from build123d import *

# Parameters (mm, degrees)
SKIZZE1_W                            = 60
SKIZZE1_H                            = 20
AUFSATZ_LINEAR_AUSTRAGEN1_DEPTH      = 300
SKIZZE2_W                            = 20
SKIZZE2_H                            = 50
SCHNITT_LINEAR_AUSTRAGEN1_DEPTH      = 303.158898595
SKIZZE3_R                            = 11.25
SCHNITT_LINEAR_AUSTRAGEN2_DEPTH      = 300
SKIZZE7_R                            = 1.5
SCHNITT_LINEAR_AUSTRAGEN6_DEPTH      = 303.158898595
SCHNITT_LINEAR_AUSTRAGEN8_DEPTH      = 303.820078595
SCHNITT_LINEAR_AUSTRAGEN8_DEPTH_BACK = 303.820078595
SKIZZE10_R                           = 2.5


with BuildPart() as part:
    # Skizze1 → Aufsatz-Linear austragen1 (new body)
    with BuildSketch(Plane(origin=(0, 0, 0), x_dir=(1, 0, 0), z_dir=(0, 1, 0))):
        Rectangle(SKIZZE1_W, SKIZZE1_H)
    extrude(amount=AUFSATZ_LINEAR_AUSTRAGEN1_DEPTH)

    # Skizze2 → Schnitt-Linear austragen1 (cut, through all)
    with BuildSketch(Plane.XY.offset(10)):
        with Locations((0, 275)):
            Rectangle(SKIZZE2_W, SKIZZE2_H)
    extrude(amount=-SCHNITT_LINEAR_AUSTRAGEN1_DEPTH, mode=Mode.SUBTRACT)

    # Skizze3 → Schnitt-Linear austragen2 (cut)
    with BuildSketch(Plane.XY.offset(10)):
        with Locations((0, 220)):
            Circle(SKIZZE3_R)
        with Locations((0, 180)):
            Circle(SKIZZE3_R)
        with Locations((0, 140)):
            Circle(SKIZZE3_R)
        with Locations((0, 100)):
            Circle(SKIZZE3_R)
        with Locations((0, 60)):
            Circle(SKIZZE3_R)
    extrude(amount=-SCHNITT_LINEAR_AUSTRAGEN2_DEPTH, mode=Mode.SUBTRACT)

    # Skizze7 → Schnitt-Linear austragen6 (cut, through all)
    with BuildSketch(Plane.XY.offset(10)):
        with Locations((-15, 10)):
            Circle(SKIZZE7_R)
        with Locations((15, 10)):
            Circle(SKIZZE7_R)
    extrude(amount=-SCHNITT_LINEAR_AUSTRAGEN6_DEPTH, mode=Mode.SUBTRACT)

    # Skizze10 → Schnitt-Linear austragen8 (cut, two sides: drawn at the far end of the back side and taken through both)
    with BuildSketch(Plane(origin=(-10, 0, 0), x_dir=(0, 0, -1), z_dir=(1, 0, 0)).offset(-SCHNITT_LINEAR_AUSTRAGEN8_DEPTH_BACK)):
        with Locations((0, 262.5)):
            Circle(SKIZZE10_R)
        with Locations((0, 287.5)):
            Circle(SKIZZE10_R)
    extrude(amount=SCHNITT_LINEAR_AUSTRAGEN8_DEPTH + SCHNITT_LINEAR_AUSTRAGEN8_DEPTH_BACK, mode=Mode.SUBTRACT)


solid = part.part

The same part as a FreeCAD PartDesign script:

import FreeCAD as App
import Part
import Sketcher
from FreeCAD import Vector
Q = App.Units.Quantity


def add_polygon(sketch, points):
    """Adds a closed chain of lines whose ends are joined by coincident constraints."""
    first, n = sketch.GeometryCount, len(points)
    for a, b in zip(points, points[1:] + points[:1]):
        sketch.addGeometry(Part.LineSegment(App.Vector(*a, 0), App.Vector(*b, 0)), False)
    for i in range(n):
        sketch.addConstraint(Sketcher.Constraint("Coincident", first + i, 2, first + (i + 1) % n, 1))

doc = App.newDocument("Part")
params = doc.addObject("Spreadsheet::Sheet", "Params")
for row, (alias, value) in enumerate([
    ("sketch1_width", "60 mm"),
    ("sketch1_height", "20 mm"),
    ("pad1_length", "300 mm"),
    ("sketch2_width", "20 mm"),
    ("sketch2_height", "50 mm"),
    ("sketch3_diameter", "22.5 mm"),
    ("pocket2_length", "300 mm"),
    ("sketch4_diameter", "3 mm"),
    ("sketch5_diameter", "5 mm"),
], start=1):
    params.set(f"A{row}", alias)
    params.set(f"B{row}", "=" + value)
    params.setAlias(f"B{row}", alias)

body = doc.addObject("PartDesign::Body", "Body")

sketch1 = body.newObject("Sketcher::SketchObject", "Sketch")
sketch1.AttachmentSupport = (doc.getObject("XZ_Plane"), [""])
sketch1.MapMode = "FlatFace"
add_polygon(sketch1, [(-30, -10), (-30, 10), (30, 10), (30, -10)])
sketch1.addConstraint(Sketcher.Constraint("Vertical", 0))
sketch1.addConstraint(Sketcher.Constraint("Horizontal", 1))
sketch1.addConstraint(Sketcher.Constraint("Vertical", 2))
sketch1.addConstraint(Sketcher.Constraint("Horizontal", 3))
sketch1.addConstraint(Sketcher.Constraint("Symmetric", 0, 2, 2, 2, -1, 1))
sketch1.addConstraint(Sketcher.Constraint("DistanceX", 1, 1, 1, 2, Q("60 mm")))
sketch1.addConstraint(Sketcher.Constraint("DistanceY", 0, 1, 0, 2, Q("20 mm")))
sketch1.setExpression("Constraints[9]", "Params.sketch1_width")
sketch1.setExpression("Constraints[10]", "Params.sketch1_height")
pad1 = body.newObject("PartDesign::Pad", "Pad")
pad1.Profile = sketch1
pad1.setExpression("Length", "Params.pad1_length")
pad1.Reversed = True

sketch2 = body.newObject("Sketcher::SketchObject", "Sketch001")
sketch2.AttachmentSupport = (doc.getObject("XY_Plane"), [""])
sketch2.MapMode = "FlatFace"
sketch2.AttachmentOffset = App.Placement(Vector(0, 0, 10), App.Rotation())
add_polygon(sketch2, [(-10, 300), (-10, 250), (10, 250), (10, 300)])
sketch2.addConstraint(Sketcher.Constraint("Vertical", 0))
sketch2.addConstraint(Sketcher.Constraint("Horizontal", 1))
sketch2.addConstraint(Sketcher.Constraint("Vertical", 2))
sketch2.addConstraint(Sketcher.Constraint("Horizontal", 3))
sketch2.addConstraint(Sketcher.Constraint("DistanceX", 1, 1, 1, 2, Q("20 mm")))
sketch2.addConstraint(Sketcher.Constraint("DistanceY", 0, 2, 0, 1, Q("50 mm")))
sketch2.addConstraint(Sketcher.Constraint("DistanceX", 0, 2, -1, 1, Q("10 mm")))
sketch2.addConstraint(Sketcher.Constraint("DistanceY", -1, 1, 0, 2, Q("250 mm")))
sketch2.setExpression("Constraints[8]", "Params.sketch2_width")
sketch2.setExpression("Constraints[9]", "Params.sketch2_height")
pocket1 = body.newObject("PartDesign::Pocket", "Pocket")
pocket1.Profile = sketch2
pocket1.Type = "ThroughAll"

sketch3 = body.newObject("Sketcher::SketchObject", "Sketch002")
sketch3.AttachmentSupport = (doc.getObject("XY_Plane"), [""])
sketch3.MapMode = "FlatFace"
sketch3.AttachmentOffset = App.Placement(Vector(0, 0, 10), App.Rotation())
sketch3.addGeometry(Part.Circle(Vector(0, 220, 0), Vector(0, 0, 1), 11), False)
sketch3.addGeometry(Part.Circle(Vector(0, 180, 0), Vector(0, 0, 1), 11), False)
sketch3.addGeometry(Part.Circle(Vector(0, 140, 0), Vector(0, 0, 1), 11), False)
sketch3.addGeometry(Part.Circle(Vector(0, 100, 0), Vector(0, 0, 1), 11), False)
sketch3.addGeometry(Part.Circle(Vector(0, 60, 0), Vector(0, 0, 1), 11), False)
sketch3.addConstraint(Sketcher.Constraint("Equal", 0, 1))
sketch3.addConstraint(Sketcher.Constraint("Equal", 1, 2))
sketch3.addConstraint(Sketcher.Constraint("Equal", 2, 3))
sketch3.addConstraint(Sketcher.Constraint("Equal", 3, 4))
sketch3.addConstraint(Sketcher.Constraint("PointOnObject", 0, 3, -2))
sketch3.addConstraint(Sketcher.Constraint("PointOnObject", 1, 3, -2))
sketch3.addConstraint(Sketcher.Constraint("PointOnObject", 2, 3, -2))
sketch3.addConstraint(Sketcher.Constraint("PointOnObject", 3, 3, -2))
sketch3.addConstraint(Sketcher.Constraint("PointOnObject", 4, 3, -2))
sketch3.addConstraint(Sketcher.Constraint("Diameter", 0, Q("22.5 mm")))
sketch3.addConstraint(Sketcher.Constraint("DistanceY", -1, 1, 0, 3, Q("220 mm")))
sketch3.addConstraint(Sketcher.Constraint("DistanceY", -1, 1, 1, 3, Q("180 mm")))
sketch3.addConstraint(Sketcher.Constraint("DistanceY", -1, 1, 2, 3, Q("140 mm")))
sketch3.addConstraint(Sketcher.Constraint("DistanceY", -1, 1, 3, 3, Q("100 mm")))
sketch3.addConstraint(Sketcher.Constraint("DistanceY", -1, 1, 4, 3, Q("60 mm")))
sketch3.setExpression("Constraints[9]", "Params.sketch3_diameter")
pocket2 = body.newObject("PartDesign::Pocket", "Pocket001")
pocket2.Profile = sketch3
pocket2.setExpression("Length", "Params.pocket2_length")

sketch4 = body.newObject("Sketcher::SketchObject", "Sketch003")
sketch4.AttachmentSupport = (doc.getObject("XY_Plane"), [""])
sketch4.MapMode = "FlatFace"
sketch4.AttachmentOffset = App.Placement(Vector(0, 0, 10), App.Rotation())
sketch4.addGeometry(Part.Circle(Vector(-15, 10, 0), Vector(0, 0, 1), 1.5), False)
sketch4.addGeometry(Part.Circle(Vector(15, 10, 0), Vector(0, 0, 1), 1.5), False)
sketch4.addConstraint(Sketcher.Constraint("Equal", 0, 1))
sketch4.addConstraint(Sketcher.Constraint("Symmetric", 0, 3, 1, 3, -2))
sketch4.addConstraint(Sketcher.Constraint("Diameter", 0, Q("3 mm")))
sketch4.addConstraint(Sketcher.Constraint("DistanceX", 0, 3, -1, 1, Q("15 mm")))
sketch4.addConstraint(Sketcher.Constraint("DistanceY", -1, 1, 0, 3, Q("10 mm")))
sketch4.setExpression("Constraints[2]", "Params.sketch4_diameter")
pocket3 = body.newObject("PartDesign::Pocket", "Pocket002")
pocket3.Profile = sketch4
pocket3.Type = "ThroughAll"

sketch5 = body.newObject("Sketcher::SketchObject", "Sketch004")
sketch5.AttachmentSupport = (doc.getObject("YZ_Plane"), [""])
sketch5.MapMode = "FlatFace"
sketch5.AttachmentOffset = App.Placement(Vector(0, 0, -10), App.Rotation())
sketch5.addGeometry(Part.Circle(Vector(262.5, 0, 0), Vector(0, 0, 1), 2.5), False)
sketch5.addGeometry(Part.Circle(Vector(287.5, 0, 0), Vector(0, 0, 1), 2.5), False)
sketch5.addConstraint(Sketcher.Constraint("Equal", 0, 1))
sketch5.addConstraint(Sketcher.Constraint("PointOnObject", 0, 3, -1))
sketch5.addConstraint(Sketcher.Constraint("PointOnObject", 1, 3, -1))
sketch5.addConstraint(Sketcher.Constraint("Diameter", 0, Q("5 mm")))
sketch5.addConstraint(Sketcher.Constraint("DistanceX", 0, 3, 1, 3, Q("25 mm")))
sketch5.addConstraint(Sketcher.Constraint("DistanceX", -1, 1, 0, 3, Q("262.5 mm")))
sketch5.setExpression("Constraints[3]", "Params.sketch5_diameter")
pocket4 = body.newObject("PartDesign::Pocket", "Pocket003")
pocket4.Profile = sketch5
pocket4.Type = "ThroughAll"
pocket4.Midplane = True

doc.recompute()
